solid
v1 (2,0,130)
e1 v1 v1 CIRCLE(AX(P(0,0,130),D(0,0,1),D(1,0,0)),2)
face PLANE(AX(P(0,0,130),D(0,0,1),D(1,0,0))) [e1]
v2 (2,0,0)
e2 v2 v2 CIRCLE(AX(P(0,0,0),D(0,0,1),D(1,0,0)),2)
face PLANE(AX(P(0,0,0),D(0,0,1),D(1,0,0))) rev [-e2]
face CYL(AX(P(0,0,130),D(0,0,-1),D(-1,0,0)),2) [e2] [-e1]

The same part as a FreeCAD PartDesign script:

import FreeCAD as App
import Part
import Sketcher

doc = App.newDocument("Part")
body = doc.addObject("PartDesign::Body", "Body")

# Sketch on XY plane
sketch1 = doc.addObject("Sketcher::SketchObject", "Sketch")
body.addObject(sketch1)
sketch1.AttachmentSupport = (doc.XY_Plane, [""])
sketch1.MapMode = "FlatFace"
sketch1.addGeometry(Part.Circle(App.Vector(0, 0, 0), App.Vector(0, 0, 1), 2), False)
sketch1.addConstraint(Sketcher.Constraint("Coincident", 0, 3, -1, 1))
sketch1.addConstraint(Sketcher.Constraint("Diameter", 0, 4.0))
pad1 = doc.addObject("PartDesign::Pad", "Pad")
body.addObject(pad1)
pad1.Profile = sketch1
pad1.Length = 130

doc.recompute()
